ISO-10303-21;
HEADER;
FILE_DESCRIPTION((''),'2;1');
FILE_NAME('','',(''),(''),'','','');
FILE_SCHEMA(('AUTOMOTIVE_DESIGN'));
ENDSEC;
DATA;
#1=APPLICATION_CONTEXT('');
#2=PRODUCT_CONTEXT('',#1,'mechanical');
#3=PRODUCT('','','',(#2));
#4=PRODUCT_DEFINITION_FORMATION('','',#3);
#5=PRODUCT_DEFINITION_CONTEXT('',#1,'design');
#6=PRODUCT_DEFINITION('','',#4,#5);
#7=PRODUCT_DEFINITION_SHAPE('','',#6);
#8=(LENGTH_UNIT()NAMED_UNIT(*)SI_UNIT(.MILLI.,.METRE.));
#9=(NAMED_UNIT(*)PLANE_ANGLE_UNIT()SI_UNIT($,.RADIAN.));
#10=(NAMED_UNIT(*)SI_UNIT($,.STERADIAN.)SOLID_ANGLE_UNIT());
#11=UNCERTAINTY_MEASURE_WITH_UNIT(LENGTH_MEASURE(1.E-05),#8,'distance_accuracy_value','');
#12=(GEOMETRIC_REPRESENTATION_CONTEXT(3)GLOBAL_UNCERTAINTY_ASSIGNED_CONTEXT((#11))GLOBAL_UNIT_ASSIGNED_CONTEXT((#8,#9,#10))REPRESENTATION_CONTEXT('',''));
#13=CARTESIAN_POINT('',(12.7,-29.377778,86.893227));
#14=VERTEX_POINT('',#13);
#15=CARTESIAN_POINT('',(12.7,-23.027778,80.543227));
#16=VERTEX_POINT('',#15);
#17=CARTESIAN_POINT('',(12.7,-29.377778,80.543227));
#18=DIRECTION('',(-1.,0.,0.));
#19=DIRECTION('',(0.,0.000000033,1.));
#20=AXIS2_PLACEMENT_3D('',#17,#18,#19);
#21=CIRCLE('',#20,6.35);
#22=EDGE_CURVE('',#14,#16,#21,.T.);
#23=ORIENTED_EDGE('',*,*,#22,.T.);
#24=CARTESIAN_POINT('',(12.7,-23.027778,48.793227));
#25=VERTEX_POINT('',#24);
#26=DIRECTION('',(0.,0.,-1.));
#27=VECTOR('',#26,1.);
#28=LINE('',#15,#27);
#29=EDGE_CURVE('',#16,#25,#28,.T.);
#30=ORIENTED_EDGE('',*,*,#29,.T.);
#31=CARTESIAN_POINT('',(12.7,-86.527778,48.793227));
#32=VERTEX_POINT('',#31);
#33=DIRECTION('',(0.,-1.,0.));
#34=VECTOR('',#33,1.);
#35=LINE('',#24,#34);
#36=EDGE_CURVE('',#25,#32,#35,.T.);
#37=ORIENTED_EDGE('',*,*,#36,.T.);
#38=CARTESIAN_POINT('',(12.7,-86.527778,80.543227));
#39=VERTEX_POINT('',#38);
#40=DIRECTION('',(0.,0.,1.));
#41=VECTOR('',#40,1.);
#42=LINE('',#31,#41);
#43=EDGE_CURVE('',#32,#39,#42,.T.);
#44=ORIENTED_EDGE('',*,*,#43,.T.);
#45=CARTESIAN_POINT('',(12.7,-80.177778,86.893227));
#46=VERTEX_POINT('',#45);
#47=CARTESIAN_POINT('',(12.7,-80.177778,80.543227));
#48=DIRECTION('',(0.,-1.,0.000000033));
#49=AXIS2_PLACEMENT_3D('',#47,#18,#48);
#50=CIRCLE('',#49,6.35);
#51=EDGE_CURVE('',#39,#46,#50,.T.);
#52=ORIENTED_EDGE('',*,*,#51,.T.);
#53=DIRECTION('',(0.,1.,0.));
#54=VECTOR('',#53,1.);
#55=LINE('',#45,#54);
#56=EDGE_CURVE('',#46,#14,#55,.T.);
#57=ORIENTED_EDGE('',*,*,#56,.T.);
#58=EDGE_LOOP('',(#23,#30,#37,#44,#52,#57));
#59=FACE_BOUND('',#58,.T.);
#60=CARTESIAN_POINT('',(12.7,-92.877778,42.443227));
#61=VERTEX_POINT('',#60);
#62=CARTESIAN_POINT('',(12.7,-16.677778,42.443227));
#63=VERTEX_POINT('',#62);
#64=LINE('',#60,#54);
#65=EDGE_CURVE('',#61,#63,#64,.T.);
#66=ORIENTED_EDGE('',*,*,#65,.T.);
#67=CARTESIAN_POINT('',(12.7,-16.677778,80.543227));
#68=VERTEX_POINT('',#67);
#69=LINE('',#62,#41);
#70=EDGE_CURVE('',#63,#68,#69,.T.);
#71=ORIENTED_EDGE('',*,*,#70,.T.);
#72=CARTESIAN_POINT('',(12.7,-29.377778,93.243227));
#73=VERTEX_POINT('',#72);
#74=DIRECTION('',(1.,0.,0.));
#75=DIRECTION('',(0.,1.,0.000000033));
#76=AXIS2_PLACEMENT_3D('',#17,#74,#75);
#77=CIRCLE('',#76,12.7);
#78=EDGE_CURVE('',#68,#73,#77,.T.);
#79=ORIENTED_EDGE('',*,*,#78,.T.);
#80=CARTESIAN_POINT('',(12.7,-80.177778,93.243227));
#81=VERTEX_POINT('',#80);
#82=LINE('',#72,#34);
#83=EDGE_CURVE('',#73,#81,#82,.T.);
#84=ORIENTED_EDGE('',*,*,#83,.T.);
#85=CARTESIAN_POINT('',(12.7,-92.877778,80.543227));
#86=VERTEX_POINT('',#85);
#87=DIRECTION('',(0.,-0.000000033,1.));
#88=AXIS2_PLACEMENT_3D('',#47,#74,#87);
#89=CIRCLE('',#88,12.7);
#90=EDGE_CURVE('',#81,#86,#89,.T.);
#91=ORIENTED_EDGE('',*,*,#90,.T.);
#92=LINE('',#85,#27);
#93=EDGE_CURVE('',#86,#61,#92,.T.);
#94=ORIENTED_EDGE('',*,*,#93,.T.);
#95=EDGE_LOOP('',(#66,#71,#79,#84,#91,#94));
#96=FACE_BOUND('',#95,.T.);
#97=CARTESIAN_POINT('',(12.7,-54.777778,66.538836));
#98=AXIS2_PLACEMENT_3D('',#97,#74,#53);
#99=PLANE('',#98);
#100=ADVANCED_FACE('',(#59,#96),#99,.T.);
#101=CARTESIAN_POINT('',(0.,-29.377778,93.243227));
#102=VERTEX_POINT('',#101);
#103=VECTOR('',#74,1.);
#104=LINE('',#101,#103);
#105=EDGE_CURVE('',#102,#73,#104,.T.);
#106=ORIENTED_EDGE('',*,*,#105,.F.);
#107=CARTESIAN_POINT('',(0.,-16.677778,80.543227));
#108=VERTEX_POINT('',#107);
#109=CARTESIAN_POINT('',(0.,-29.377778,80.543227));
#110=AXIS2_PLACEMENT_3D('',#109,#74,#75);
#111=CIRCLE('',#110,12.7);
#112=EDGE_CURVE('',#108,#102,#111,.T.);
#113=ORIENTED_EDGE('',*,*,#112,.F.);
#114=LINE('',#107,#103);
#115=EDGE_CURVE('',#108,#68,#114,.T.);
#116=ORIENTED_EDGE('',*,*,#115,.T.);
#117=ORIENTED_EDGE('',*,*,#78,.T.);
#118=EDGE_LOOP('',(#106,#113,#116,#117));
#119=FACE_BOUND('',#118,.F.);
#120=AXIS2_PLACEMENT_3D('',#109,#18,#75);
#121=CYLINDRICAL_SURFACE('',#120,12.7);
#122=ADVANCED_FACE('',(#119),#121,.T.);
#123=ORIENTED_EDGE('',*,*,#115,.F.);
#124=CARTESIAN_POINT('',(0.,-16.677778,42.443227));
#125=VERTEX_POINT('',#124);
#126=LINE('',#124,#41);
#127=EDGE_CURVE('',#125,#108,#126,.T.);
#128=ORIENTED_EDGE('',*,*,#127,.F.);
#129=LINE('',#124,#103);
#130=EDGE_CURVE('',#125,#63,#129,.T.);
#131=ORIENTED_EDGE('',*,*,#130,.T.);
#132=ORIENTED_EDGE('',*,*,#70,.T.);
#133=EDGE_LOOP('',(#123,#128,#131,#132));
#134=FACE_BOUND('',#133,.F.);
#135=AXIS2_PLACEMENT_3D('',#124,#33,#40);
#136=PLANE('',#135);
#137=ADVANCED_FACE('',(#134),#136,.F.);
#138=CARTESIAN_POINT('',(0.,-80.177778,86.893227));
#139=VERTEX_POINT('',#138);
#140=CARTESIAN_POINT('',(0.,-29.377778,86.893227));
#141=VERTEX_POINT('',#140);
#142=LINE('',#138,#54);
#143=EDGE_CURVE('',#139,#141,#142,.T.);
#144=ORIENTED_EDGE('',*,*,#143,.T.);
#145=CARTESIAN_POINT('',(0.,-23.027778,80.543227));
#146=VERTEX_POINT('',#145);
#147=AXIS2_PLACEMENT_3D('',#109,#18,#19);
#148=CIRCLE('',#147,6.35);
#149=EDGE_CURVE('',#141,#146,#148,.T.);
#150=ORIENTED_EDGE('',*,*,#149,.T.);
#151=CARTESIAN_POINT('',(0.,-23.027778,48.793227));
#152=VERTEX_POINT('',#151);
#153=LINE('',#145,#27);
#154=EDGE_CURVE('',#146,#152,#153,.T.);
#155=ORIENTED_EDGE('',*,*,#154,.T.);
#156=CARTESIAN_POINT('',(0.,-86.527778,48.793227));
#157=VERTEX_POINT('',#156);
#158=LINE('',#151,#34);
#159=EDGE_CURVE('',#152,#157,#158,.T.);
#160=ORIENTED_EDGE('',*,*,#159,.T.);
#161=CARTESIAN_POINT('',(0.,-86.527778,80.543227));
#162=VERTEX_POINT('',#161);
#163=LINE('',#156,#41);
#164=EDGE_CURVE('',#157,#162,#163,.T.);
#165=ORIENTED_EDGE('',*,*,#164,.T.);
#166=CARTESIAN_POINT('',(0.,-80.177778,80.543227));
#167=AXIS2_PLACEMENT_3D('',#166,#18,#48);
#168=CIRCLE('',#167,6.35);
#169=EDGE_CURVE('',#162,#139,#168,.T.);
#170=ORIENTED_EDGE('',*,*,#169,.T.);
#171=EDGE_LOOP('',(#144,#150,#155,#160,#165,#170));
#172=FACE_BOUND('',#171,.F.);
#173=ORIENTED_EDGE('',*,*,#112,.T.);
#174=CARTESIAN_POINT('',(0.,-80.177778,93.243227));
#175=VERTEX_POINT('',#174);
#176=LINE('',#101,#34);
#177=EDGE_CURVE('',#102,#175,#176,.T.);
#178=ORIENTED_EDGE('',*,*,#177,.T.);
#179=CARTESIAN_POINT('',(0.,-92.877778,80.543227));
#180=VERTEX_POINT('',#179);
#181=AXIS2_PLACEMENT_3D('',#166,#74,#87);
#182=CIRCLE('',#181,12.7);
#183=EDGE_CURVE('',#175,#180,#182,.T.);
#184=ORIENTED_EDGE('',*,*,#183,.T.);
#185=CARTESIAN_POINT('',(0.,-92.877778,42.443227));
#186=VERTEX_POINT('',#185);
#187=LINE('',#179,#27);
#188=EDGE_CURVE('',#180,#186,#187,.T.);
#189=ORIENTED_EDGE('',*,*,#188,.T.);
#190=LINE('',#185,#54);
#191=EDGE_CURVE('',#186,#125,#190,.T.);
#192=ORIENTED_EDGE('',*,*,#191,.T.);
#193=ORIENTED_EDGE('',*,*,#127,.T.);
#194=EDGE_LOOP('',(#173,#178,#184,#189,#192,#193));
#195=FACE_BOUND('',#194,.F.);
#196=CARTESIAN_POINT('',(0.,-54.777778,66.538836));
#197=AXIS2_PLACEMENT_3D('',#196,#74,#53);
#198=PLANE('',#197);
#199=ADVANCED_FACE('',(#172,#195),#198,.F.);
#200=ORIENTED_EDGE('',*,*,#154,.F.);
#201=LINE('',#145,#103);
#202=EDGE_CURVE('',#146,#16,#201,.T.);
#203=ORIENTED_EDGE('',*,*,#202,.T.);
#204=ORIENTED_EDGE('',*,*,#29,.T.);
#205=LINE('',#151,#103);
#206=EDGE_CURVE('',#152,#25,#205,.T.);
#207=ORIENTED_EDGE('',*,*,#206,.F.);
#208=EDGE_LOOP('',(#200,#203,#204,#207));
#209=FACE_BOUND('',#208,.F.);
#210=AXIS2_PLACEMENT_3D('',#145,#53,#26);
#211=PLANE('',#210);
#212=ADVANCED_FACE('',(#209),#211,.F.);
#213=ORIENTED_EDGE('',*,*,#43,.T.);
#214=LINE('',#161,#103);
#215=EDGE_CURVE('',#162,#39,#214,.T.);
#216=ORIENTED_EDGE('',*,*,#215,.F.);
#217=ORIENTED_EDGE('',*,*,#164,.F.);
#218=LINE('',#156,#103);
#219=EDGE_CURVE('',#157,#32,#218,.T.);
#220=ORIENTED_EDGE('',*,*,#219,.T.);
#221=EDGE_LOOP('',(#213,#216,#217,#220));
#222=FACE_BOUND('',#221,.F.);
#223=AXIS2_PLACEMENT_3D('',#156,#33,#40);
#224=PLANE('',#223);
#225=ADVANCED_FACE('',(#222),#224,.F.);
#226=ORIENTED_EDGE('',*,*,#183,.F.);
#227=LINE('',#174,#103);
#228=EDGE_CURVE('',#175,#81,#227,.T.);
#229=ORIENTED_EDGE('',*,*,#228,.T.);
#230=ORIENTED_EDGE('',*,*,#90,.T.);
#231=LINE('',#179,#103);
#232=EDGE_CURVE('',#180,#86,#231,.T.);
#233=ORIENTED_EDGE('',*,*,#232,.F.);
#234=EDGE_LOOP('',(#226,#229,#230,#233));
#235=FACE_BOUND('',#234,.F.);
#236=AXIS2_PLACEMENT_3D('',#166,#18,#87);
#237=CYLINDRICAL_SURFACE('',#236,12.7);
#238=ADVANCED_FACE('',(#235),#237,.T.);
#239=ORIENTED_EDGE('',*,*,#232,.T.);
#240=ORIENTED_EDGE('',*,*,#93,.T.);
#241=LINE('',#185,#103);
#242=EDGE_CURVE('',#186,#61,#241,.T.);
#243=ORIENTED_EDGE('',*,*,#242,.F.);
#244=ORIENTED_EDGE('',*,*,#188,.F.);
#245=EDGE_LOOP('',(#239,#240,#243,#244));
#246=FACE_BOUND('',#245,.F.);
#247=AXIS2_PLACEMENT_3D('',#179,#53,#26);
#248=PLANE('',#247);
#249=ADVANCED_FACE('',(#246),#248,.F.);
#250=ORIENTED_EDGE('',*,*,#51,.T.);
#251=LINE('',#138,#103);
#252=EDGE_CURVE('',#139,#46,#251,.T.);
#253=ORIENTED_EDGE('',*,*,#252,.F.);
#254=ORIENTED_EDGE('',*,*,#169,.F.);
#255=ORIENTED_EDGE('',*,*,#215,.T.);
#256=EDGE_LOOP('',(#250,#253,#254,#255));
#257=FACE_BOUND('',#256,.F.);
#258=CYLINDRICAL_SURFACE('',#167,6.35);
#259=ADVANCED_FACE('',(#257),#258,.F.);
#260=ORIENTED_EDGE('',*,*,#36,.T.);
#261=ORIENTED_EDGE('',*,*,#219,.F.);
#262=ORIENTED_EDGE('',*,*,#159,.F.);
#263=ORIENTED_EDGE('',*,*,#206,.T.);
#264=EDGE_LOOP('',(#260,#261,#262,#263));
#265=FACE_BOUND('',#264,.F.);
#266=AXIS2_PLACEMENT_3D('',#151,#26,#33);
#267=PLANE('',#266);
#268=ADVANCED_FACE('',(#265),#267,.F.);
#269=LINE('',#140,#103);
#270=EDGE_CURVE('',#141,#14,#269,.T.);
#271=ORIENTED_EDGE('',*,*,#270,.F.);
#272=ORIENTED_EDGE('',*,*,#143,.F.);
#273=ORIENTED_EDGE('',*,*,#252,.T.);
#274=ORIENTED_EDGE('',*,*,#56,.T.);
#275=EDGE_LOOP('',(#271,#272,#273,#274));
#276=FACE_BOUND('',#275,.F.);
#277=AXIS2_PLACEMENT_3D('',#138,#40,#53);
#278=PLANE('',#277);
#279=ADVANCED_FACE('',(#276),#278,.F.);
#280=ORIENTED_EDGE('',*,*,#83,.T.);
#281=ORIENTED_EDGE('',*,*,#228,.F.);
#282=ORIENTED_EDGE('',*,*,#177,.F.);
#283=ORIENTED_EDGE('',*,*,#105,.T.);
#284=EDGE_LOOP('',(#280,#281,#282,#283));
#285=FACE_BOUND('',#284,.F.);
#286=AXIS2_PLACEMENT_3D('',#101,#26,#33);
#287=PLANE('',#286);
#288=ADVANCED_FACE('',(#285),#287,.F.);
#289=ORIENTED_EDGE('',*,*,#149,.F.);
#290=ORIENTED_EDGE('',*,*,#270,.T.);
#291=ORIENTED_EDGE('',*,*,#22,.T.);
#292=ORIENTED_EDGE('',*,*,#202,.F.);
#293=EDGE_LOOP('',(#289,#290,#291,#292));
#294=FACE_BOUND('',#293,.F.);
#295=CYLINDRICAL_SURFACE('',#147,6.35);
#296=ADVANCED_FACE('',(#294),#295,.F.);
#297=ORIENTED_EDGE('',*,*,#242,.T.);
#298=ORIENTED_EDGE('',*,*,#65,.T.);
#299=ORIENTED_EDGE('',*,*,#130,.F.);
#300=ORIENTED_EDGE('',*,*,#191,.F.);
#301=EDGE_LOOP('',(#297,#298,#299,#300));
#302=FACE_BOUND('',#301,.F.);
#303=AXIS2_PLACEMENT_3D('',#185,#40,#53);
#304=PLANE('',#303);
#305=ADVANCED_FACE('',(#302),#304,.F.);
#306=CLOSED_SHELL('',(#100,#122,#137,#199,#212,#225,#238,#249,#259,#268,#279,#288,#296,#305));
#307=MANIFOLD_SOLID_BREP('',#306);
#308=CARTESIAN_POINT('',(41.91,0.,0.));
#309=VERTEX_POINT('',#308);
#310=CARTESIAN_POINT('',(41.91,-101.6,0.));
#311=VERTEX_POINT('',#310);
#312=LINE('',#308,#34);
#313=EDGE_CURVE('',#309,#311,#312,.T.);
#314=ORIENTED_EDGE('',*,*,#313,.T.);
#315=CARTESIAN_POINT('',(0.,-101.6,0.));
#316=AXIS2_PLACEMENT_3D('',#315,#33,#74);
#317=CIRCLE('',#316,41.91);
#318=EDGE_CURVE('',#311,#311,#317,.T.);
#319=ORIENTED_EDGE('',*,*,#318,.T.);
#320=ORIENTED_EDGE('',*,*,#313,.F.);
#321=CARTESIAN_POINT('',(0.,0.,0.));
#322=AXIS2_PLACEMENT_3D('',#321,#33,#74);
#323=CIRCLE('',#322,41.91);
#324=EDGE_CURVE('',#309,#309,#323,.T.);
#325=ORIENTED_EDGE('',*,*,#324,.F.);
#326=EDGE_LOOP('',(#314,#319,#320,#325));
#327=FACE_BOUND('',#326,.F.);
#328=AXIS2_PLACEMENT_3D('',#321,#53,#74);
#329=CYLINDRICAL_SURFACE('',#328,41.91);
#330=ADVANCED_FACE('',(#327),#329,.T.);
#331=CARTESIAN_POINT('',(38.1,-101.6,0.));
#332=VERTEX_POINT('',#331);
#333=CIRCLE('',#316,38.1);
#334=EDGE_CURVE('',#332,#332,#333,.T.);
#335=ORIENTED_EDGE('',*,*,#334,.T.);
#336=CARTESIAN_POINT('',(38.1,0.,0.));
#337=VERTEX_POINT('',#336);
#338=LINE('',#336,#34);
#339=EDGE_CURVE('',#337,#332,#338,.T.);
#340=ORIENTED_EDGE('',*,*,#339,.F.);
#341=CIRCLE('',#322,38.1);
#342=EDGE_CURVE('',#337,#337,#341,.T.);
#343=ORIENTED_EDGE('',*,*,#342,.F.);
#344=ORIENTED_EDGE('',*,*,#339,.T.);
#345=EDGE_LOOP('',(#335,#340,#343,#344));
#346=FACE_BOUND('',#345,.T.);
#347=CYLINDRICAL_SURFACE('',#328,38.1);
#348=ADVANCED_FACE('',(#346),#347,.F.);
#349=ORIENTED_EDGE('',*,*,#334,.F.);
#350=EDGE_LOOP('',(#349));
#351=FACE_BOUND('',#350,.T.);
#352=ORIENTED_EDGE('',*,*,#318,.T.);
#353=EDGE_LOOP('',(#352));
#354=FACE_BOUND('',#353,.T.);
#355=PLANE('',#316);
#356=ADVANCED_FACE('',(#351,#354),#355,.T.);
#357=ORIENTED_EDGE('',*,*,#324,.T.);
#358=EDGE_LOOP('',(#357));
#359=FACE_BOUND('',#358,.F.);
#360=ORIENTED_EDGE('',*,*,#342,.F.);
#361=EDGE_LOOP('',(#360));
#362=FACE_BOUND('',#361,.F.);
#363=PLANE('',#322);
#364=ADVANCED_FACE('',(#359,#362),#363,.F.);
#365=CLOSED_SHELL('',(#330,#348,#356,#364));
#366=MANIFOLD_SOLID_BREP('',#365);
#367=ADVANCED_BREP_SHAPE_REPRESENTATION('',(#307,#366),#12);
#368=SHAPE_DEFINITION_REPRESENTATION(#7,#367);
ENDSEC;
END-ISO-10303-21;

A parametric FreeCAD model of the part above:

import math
import FreeCAD as App
import Part
import Sketcher
Q = App.Units.Quantity

doc = App.newDocument("Part")
body = doc.addObject("PartDesign::Body", "Body")

# Sketch on XZ plane
sketch1 = body.newObject("Sketcher::SketchObject", "Sketch")
sketch1.AttachmentSupport = (doc.getObject("XZ_Plane"), [""])
sketch1.MapMode = "FlatFace"
sketch1.addGeometry(Part.Circle(App.Vector(0, 0, 0), App.Vector(0, 0, 1), 41.91), False)
sketch1.addGeometry(Part.Circle(App.Vector(0, 0, 0), App.Vector(0, 0, 1), 38.1), False)
sketch1.addConstraint(Sketcher.Constraint("Coincident", 0, 3, -1, 1))
sketch1.addConstraint(Sketcher.Constraint("Coincident", 1, 3, -1, 1))
sketch1.addConstraint(Sketcher.Constraint("Diameter", 1, Q("3 in")))
sketch1.addConstraint(Sketcher.Constraint("Diameter", 0, Q("3.3 in")))
pad1 = body.newObject("PartDesign::Pad", "Pad")
pad1.Profile = sketch1
pad1.Length = Q("4 in")
body2 = doc.addObject("PartDesign::Body", "Body001")

# Sketch on YZ plane
sketch2 = body2.newObject("Sketcher::SketchObject", "Sketch001")
sketch2.AttachmentSupport = (doc.getObject("YZ_Plane001"), [""])
sketch2.MapMode = "FlatFace"
sketch2.addGeometry(Part.LineSegment(App.Vector(-92.877778, 80.543227, 0), App.Vector(-92.877778, 42.443227, 0)), False)
sketch2.addGeometry(Part.LineSegment(App.Vector(-92.877778, 42.443227, 0), App.Vector(-16.677778, 42.443227, 0)), False)
sketch2.addGeometry(Part.LineSegment(App.Vector(-16.677778, 42.443227, 0), App.Vector(-16.677778, 80.543227, 0)), False)
sketch2.addGeometry(Part.ArcOfCircle(Part.Circle(App.Vector(-29.377778, 80.543227, 0), App.Vector(0, 0, 1), 12.7), math.radians(0.000002), math.radians(89.999998)), False)
sketch2.addGeometry(Part.LineSegment(App.Vector(-29.377778, 93.243227, 0), App.Vector(-80.177778, 93.243227, 0)), False)
sketch2.addGeometry(Part.ArcOfCircle(Part.Circle(App.Vector(-80.177778, 80.543227, 0), App.Vector(0, 0, 1), 12.7), math.radians(90.000002), math.radians(179.999998)), False)
sketch2.addGeometry(Part.LineSegment(App.Vector(-86.527778, 48.793227, 0), App.Vector(-86.527778, 80.543227, 0)), False)
sketch2.addGeometry(Part.ArcOfCircle(Part.Circle(App.Vector(-80.177778, 80.543227, 0), App.Vector(0, 0, 1), 6.35), math.radians(90.000002), math.radians(179.999998)), False)
sketch2.addGeometry(Part.LineSegment(App.Vector(-80.177778, 86.893227, 0), App.Vector(-29.377778, 86.893227, 0)), False)
sketch2.addGeometry(Part.ArcOfCircle(Part.Circle(App.Vector(-29.377778, 80.543227, 0), App.Vector(0, 0, 1), 6.35), math.radians(0.000002), math.radians(89.999998)), False)
sketch2.addGeometry(Part.LineSegment(App.Vector(-23.027778, 80.543227, 0), App.Vector(-23.027778, 48.793227, 0)), False)
sketch2.addGeometry(Part.LineSegment(App.Vector(-23.027778, 48.793227, 0), App.Vector(-86.527778, 48.793227, 0)), False)
sketch2.addConstraint(Sketcher.Constraint("Coincident", 0, 2, 1, 1))
sketch2.addConstraint(Sketcher.Constraint("Coincident", 1, 2, 2, 1))
sketch2.addConstraint(Sketcher.Constraint("Tangent", 2, 2, 3, 1))
sketch2.addConstraint(Sketcher.Constraint("Tangent", 3, 2, 4, 1))
sketch2.addConstraint(Sketcher.Constraint("Tangent", 4, 2, 5, 1))
sketch2.addConstraint(Sketcher.Constraint("Tangent", 5, 2, 0, 1))
sketch2.addConstraint(Sketcher.Constraint("Tangent", 6, 2, 7, 2))
sketch2.addConstraint(Sketcher.Constraint("Tangent", 7, 1, 8, 1))
sketch2.addConstraint(Sketcher.Constraint("Tangent", 8, 2, 9, 2))
sketch2.addConstraint(Sketcher.Constraint("Tangent", 9, 1, 10, 1))
sketch2.addConstraint(Sketcher.Constraint("Coincident", 10, 2, 11, 1))
sketch2.addConstraint(Sketcher.Constraint("Coincident", 11, 2, 6, 1))
sketch2.addConstraint(Sketcher.Constraint("Vertical", 0))
sketch2.addConstraint(Sketcher.Constraint("Horizontal", 1))
sketch2.addConstraint(Sketcher.Constraint("Vertical", 2))
sketch2.addConstraint(Sketcher.Constraint("Horizontal", 4))
sketch2.addConstraint(Sketcher.Constraint("Vertical", 6))
sketch2.addConstraint(Sketcher.Constraint("Horizontal", 8))
sketch2.addConstraint(Sketcher.Constraint("Vertical", 10))
sketch2.addConstraint(Sketcher.Constraint("Horizontal", 11))
sketch2.addConstraint(Sketcher.Constraint("Coincident", 7, 3, 5, 3))
sketch2.addConstraint(Sketcher.Constraint("Coincident", 9, 3, 3, 3))
sketch2.addConstraint(Sketcher.Constraint("Equal", 3, 5))
sketch2.addConstraint(Sketcher.Constraint("Radius", 3, Q("0.5 in")))
sketch2.addConstraint(Sketcher.Constraint("DistanceX", 1, 1, 1, 2, Q("3 in")))
sketch2.addConstraint(Sketcher.Constraint("Radius", 7, Q("0.25 in")))
sketch2.addConstraint(Sketcher.Constraint("DistanceY", 0, 2, 0, 1, Q("1.5 in")))
sketch2.addConstraint(Sketcher.Constraint("DistanceY", 6, 1, 6, 2, Q("1.25 in")))
sketch2.addConstraint(Sketcher.Constraint("DistanceX", 3, 3, -1, 1, 29.377778))
sketch2.addConstraint(Sketcher.Constraint("DistanceY", -1, 1, 3, 3, 80.543227))
pad2 = body2.newObject("PartDesign::Pad", "Pad001")
pad2.Profile = sketch2
pad2.Length = Q("0.5 in")

doc.recompute()
